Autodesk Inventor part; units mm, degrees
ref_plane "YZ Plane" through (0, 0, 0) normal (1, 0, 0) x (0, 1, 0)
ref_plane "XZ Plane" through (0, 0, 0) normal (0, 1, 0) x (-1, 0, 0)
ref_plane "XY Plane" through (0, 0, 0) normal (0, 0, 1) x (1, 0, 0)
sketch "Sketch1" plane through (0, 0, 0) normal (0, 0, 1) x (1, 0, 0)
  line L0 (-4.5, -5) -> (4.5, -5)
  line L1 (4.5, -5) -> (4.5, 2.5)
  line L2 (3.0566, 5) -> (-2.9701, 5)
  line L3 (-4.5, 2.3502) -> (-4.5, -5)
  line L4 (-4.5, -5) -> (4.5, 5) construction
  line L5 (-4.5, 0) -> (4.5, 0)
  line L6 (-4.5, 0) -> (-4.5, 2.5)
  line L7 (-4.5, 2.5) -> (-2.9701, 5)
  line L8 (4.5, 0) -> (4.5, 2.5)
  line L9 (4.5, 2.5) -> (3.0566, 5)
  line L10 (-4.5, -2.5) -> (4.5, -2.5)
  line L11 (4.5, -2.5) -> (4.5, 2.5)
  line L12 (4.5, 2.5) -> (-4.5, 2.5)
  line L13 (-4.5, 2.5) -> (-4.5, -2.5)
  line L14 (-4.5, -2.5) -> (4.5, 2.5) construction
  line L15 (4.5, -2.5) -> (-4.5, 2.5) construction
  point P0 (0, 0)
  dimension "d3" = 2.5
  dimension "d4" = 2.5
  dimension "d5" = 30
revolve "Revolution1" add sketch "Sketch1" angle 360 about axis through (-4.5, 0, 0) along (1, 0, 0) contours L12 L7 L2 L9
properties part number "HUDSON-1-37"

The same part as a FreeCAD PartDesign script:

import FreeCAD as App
import Part
import Sketcher
from FreeCAD import Vector
Q = App.Units.Quantity


def add_polygon(sketch, points):
    """Adds a closed chain of lines whose ends are joined by coincident constraints."""
    first, n = sketch.GeometryCount, len(points)
    for a, b in zip(points, points[1:] + points[:1]):
        sketch.addGeometry(Part.LineSegment(App.Vector(*a, 0), App.Vector(*b, 0)), False)
    for i in range(n):
        sketch.addConstraint(Sketcher.Constraint("Coincident", first + i, 2, first + (i + 1) % n, 1))

doc = App.newDocument("Part")
params = doc.addObject("Spreadsheet::Sheet", "Params")
for row, (alias, value) in enumerate([
    ("sketch1_width", "9 mm"),
    ("revolution_angle", "360 deg"),
], start=1):
    params.set(f"A{row}", alias)
    params.set(f"B{row}", "=" + value)
    params.setAlias(f"B{row}", alias)

body = doc.addObject("PartDesign::Body", "Body")

# Sketch on XY plane
sketch1 = doc.addObject("Sketcher::SketchObject", "Sketch")
body.addObject(sketch1)
sketch1.AttachmentSupport = (doc.XY_Plane, [""])
sketch1.MapMode = "FlatFace"
add_polygon(sketch1, [(-4.5, 2.5), (4.5, 2.5), (3.1, 5), (-3, 5)])  # lines 0-3
sketch1.addConstraint([
    Sketcher.Constraint("Horizontal", 0),
    Sketcher.Constraint("Horizontal", 2),
    Sketcher.Constraint("DistanceY", -1, 1, 0, 2, Q("2.5 mm")),
    Sketcher.Constraint("DistanceY", 0, 2, 1, 2, Q("2.5 mm")),
    Sketcher.Constraint("DistanceX", 0, 1, 0, 2, Q("9 mm")),
    Sketcher.Constraint("Angle", 1, Q("120.0004 deg")),
    Sketcher.Constraint("DistanceX", -1, 1, 0, 2, Q("4.5 mm")),
    Sketcher.Constraint("DistanceX", 2, 2, -1, 1, Q("2.97 mm")),
])
sketch1.setExpression("Constraints[8]", "Params.sketch1_width")
revolution = doc.addObject("PartDesign::Revolution", "Revolution")
body.addObject(revolution)
revolution.Profile = sketch1
revolution.ReferenceAxis = (sketch1, ["H_Axis"])
revolution.setExpression("Angle", "Params.revolution_angle")

doc.recompute()
